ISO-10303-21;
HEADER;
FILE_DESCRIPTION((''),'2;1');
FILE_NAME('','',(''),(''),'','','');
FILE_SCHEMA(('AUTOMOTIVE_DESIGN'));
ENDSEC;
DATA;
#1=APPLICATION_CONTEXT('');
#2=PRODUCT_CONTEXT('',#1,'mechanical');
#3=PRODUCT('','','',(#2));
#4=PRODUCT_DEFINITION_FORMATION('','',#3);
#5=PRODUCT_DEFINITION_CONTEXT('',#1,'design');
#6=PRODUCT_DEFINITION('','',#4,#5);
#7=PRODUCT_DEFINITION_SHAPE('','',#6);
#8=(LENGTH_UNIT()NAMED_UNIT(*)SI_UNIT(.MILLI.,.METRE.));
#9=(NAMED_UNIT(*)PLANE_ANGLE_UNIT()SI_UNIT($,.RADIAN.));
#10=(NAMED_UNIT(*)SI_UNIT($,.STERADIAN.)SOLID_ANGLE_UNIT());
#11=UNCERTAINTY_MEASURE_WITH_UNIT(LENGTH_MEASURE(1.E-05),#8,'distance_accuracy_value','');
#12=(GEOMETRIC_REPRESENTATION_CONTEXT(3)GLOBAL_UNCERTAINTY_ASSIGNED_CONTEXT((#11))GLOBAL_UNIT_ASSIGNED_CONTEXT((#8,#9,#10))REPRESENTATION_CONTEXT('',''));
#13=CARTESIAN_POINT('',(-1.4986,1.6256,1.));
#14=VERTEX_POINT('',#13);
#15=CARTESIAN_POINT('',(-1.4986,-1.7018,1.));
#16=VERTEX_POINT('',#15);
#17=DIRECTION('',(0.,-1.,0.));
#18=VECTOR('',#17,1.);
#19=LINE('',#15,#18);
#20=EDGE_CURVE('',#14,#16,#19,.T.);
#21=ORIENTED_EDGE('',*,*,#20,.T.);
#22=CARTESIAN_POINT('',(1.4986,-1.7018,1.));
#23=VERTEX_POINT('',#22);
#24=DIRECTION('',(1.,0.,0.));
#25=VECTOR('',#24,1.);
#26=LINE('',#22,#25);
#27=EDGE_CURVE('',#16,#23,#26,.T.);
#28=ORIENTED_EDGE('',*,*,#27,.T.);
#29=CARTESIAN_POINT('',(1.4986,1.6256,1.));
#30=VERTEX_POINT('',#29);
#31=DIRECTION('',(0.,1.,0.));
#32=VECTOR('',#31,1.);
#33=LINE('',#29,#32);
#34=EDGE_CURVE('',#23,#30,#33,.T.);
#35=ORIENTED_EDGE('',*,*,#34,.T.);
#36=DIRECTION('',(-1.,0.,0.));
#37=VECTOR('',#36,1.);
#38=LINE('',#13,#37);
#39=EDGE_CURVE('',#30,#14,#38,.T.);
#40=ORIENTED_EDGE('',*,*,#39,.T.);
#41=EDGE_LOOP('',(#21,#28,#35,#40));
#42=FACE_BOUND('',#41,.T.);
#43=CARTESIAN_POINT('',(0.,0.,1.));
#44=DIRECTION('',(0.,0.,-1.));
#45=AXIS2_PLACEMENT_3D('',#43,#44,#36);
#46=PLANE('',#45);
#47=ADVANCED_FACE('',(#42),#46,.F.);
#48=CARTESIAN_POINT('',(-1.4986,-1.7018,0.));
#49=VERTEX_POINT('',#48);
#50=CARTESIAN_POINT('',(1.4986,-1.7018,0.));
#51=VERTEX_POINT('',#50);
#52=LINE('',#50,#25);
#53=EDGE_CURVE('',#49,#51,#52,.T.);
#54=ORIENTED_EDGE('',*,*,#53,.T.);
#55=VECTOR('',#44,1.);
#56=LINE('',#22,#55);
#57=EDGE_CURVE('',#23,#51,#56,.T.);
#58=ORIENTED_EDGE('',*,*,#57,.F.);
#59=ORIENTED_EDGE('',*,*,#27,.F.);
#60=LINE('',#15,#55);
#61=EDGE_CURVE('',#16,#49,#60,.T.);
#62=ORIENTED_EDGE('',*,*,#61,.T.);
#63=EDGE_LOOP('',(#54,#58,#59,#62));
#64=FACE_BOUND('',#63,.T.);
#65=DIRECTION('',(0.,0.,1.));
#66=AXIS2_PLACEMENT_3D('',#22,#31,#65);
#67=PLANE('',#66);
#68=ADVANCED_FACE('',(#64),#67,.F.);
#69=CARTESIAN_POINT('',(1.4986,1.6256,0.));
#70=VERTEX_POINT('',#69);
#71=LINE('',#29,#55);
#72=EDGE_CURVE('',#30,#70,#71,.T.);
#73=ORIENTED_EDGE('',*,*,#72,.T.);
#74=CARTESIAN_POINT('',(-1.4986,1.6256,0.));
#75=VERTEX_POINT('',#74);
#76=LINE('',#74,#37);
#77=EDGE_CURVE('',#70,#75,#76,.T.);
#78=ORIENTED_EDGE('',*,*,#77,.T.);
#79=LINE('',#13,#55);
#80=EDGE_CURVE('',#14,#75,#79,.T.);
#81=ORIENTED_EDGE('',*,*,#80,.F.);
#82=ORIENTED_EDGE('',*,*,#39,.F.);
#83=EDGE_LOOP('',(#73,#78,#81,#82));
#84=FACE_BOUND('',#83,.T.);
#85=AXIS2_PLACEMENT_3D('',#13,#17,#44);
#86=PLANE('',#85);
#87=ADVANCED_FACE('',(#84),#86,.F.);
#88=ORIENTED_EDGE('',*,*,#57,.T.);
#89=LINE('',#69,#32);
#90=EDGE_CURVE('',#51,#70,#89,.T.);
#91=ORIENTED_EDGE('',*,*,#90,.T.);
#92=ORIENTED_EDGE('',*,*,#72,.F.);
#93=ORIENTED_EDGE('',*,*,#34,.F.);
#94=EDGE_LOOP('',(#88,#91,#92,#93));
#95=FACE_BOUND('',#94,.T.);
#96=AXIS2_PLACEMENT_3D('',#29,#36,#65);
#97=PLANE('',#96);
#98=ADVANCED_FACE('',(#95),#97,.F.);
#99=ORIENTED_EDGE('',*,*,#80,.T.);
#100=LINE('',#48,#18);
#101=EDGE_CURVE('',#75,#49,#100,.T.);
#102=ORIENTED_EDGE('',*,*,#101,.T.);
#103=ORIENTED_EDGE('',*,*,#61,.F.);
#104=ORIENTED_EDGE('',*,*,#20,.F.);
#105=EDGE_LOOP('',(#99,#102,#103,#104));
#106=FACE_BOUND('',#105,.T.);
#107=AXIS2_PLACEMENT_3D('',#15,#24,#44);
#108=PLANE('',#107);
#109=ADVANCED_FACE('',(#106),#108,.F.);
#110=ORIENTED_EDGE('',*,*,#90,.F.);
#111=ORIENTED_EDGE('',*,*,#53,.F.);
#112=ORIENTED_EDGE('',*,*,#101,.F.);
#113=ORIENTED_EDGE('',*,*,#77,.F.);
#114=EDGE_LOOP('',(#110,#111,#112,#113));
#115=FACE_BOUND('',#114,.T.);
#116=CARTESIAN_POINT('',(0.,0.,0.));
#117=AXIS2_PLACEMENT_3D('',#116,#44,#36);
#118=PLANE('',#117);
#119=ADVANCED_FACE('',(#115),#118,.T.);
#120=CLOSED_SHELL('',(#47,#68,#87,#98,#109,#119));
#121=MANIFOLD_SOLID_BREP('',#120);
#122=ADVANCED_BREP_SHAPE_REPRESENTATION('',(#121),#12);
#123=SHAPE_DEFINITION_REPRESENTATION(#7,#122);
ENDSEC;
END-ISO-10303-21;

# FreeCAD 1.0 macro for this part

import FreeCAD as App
import Part
import Sketcher
Q = App.Units.Quantity


def add_polygon(sketch, points):
    """Adds a closed chain of lines whose ends are joined by coincident constraints."""
    first, n = sketch.GeometryCount, len(points)
    for a, b in zip(points, points[1:] + points[:1]):
        sketch.addGeometry(Part.LineSegment(App.Vector(*a, 0), App.Vector(*b, 0)), False)
    for i in range(n):
        sketch.addConstraint(Sketcher.Constraint("Coincident", first + i, 2, first + (i + 1) % n, 1))

doc = App.newDocument("Part")
body = doc.addObject("PartDesign::Body", "Body")

# Sketch on XY plane
sketch1 = body.newObject("Sketcher::SketchObject", "Sketch")
sketch1.AttachmentSupport = (doc.getObject("XY_Plane"), [""])
sketch1.MapMode = "FlatFace"
add_polygon(sketch1, [(-1.4986, 1.6256), (-1.4986, -1.7018), (1.4986, -1.7018), (1.4986, 1.6256)])  # lines 0-3
sketch1.addConstraint([
    Sketcher.Constraint("Vertical", 0),
    Sketcher.Constraint("Horizontal", 1),
    Sketcher.Constraint("Vertical", 2),
    Sketcher.Constraint("Horizontal", 3),
    Sketcher.Constraint("DistanceX", 1, 1, 1, 2, Q("0.118 in")),
    Sketcher.Constraint("DistanceY", 0, 2, 0, 1, Q("0.131 in")),
    Sketcher.Constraint("DistanceX", 0, 2, -1, 1, Q("0.059 in")),
    Sketcher.Constraint("DistanceY", 0, 2, -1, 1, Q("0.067 in")),
])
pad1 = body.newObject("PartDesign::Pad", "Pad")
pad1.Profile = sketch1
pad1.Length = 1

doc.recompute()
